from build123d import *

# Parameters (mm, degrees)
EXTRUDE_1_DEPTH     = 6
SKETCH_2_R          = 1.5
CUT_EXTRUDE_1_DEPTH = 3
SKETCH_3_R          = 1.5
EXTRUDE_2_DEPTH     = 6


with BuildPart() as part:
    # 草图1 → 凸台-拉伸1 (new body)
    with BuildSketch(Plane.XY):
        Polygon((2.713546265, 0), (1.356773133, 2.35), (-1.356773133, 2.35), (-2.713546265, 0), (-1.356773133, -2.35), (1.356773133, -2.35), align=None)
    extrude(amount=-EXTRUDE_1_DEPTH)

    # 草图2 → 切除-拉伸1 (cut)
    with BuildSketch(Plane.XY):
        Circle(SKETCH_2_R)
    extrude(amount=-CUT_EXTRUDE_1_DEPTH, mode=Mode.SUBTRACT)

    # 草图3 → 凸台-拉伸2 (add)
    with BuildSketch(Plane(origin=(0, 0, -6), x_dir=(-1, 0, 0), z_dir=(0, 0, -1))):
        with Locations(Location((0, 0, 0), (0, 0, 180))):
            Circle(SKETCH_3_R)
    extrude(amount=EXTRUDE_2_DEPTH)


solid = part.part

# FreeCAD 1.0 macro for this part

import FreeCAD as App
import Part
import Sketcher

V = App.Vector
Q = App.Units.Quantity


def add_polygon(sketch, points):
    """Adds a closed chain of lines whose ends are joined by coincident constraints."""
    first, n = sketch.GeometryCount, len(points)
    for a, b in zip(points, points[1:] + points[:1]):
        sketch.addGeometry(Part.LineSegment(App.Vector(*a, 0), App.Vector(*b, 0)), False)
    for i in range(n):
        sketch.addConstraint(Sketcher.Constraint("Coincident", first + i, 2, first + (i + 1) % n, 1))

doc = App.newDocument("Part")
body = doc.addObject("PartDesign::Body", "Body")

# Sketch on XY plane
sketch1 = doc.addObject("Sketcher::SketchObject", "Sketch")
body.addObject(sketch1)
sketch1.AttachmentSupport = (doc.XY_Plane, [""])
sketch1.MapMode = "FlatFace"
add_polygon(sketch1, [(2.7, 0), (1.4, 2.4), (-1.4, 2.4), (-2.7, 0), (-1.4, -2.4), (1.4, -2.4)])  # lines 0-5
sketch1.addConstraint(Sketcher.Constraint("Horizontal", 1))
sketch1.addConstraint(Sketcher.Constraint("Horizontal", 4))
sketch1.addConstraint(Sketcher.Constraint("Symmetric", 0, 2, 3, 2, -1, 1))
sketch1.addConstraint(Sketcher.Constraint("Symmetric", 2, 2, 5, 2, -1, 1))
sketch1.addConstraint(Sketcher.Constraint("PointOnObject", 2, 2, -1))
sketch1.addConstraint(Sketcher.Constraint("Parallel", 2, 5))
sketch1.addConstraint(Sketcher.Constraint("Vertical", 1, 2, 3, 2))
sketch1.addConstraint(Sketcher.Constraint("Angle", 0, Q("120 deg")))
sketch1.addConstraint(Sketcher.Constraint("DistanceY", 3, 2, 1, 2, 4.7))
sketch1.addConstraint(Sketcher.Constraint("DistanceX", 1, 2, 1, 1, 2.713546))
pad1 = doc.addObject("PartDesign::Pad", "Pad")
body.addObject(pad1)
pad1.Profile = sketch1
pad1.Length = 6
pad1.Reversed = True

# Sketch on XY plane
sketch2 = doc.addObject("Sketcher::SketchObject", "Sketch001")
body.addObject(sketch2)
sketch2.AttachmentSupport = (doc.XY_Plane, [""])
sketch2.MapMode = "FlatFace"
sketch2.addGeometry(Part.Circle(V(0, 0, 0), V(0, 0, 1), 1.5), False)
sketch2.addConstraint(Sketcher.Constraint("Coincident", 0, 3, -1, 1))
sketch2.addConstraint(Sketcher.Constraint("Diameter", 0, 3.0))
pocket1 = doc.addObject("PartDesign::Pocket", "Pocket")
body.addObject(pocket1)
pocket1.Profile = sketch2
pocket1.Length = 3

# Sketch on XY plane
sketch3 = doc.addObject("Sketcher::SketchObject", "Sketch002")
body.addObject(sketch3)
sketch3.AttachmentSupport = (doc.XY_Plane, [""])
sketch3.MapMode = "FlatFace"
sketch3.AttachmentOffset = App.Placement(V(0, 0, -6), App.Rotation())
sketch3.addGeometry(Part.Circle(V(0, 0, 0), V(0, 0, 1), 1.5), False)
sketch3.addConstraint(Sketcher.Constraint("Coincident", 0, 3, -1, 1))
sketch3.addConstraint(Sketcher.Constraint("Diameter", 0, 3.0))
pad2 = doc.addObject("PartDesign::Pad", "Pad001")
body.addObject(pad2)
pad2.Profile = sketch3
pad2.Length = 6
pad2.Reversed = True

doc.recompute()
